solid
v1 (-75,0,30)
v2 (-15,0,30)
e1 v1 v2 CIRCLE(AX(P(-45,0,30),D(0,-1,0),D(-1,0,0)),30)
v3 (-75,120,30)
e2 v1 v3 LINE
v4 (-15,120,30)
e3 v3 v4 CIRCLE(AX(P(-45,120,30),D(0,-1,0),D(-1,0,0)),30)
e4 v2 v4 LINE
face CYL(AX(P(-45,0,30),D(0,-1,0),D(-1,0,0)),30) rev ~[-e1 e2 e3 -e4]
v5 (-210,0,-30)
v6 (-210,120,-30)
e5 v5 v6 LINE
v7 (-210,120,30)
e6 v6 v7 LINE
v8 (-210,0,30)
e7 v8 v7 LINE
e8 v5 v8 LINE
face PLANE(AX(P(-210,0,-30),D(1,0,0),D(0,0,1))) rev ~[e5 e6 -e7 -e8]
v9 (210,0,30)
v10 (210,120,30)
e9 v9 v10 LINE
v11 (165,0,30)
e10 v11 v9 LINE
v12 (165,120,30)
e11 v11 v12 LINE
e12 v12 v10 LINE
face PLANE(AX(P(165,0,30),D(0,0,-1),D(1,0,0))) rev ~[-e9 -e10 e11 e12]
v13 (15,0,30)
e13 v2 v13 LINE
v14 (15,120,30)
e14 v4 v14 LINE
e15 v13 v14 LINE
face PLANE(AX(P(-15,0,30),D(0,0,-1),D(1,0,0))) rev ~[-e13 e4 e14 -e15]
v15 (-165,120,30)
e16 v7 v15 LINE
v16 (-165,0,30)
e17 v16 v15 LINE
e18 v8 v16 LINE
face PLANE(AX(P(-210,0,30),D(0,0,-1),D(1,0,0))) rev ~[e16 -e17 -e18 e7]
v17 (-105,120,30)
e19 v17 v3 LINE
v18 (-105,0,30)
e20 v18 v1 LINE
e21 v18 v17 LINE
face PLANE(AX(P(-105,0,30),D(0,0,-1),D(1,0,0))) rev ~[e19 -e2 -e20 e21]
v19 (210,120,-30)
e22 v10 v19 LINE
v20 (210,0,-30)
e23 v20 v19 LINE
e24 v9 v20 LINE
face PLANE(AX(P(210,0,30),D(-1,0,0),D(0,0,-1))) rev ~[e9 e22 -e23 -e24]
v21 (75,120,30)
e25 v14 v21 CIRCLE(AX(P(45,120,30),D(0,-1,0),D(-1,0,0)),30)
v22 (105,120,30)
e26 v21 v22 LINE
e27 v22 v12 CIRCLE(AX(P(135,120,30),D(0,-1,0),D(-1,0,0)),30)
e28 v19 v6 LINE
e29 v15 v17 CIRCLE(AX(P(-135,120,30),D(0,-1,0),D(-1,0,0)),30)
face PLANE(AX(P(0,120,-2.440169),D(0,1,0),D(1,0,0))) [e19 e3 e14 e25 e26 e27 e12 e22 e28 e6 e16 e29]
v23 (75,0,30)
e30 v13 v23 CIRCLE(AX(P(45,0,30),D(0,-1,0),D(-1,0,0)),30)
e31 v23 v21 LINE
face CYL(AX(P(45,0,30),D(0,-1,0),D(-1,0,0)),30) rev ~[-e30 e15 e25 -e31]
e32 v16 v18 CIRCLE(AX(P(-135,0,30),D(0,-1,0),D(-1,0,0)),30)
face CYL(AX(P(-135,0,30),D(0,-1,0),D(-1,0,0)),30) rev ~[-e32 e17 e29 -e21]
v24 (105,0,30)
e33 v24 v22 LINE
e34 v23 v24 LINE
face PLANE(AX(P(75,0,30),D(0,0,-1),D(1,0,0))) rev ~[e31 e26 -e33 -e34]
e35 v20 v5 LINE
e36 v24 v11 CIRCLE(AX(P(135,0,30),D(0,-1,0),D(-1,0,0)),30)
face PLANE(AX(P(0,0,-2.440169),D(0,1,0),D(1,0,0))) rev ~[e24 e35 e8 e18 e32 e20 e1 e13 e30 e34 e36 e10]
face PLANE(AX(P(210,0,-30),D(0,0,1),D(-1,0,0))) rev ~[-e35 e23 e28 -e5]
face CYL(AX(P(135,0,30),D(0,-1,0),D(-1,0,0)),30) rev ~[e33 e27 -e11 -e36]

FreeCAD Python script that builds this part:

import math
import FreeCAD as App
import Part
import Sketcher

doc = App.newDocument("Part")
params = doc.addObject("Spreadsheet::Sheet", "Params")
for row, (alias, value) in enumerate([
    ("sketch1_radius", "30 mm"),
    ("sketch1_width", "30 mm"),
    ("sketch1_width2", "45 mm"),
    ("sketch1_height", "60 mm"),
    ("pad1_length", "120 mm"),
], start=1):
    params.set(f"A{row}", alias)
    params.set(f"B{row}", "=" + value)
    params.setAlias(f"B{row}", alias)

body = doc.addObject("PartDesign::Body", "Body")

# Sketch on XZ plane
sketch1 = body.newObject("Sketcher::SketchObject", "Sketch")
sketch1.AttachmentSupport = (doc.getObject("XZ_Plane"), [""])
sketch1.MapMode = "FlatFace"
sketch1.addGeometry([
    Part.LineSegment(App.Vector(-105, 30, 0), App.Vector(-75, 30, 0)),  # 0
    Part.ArcOfCircle(Part.Circle(App.Vector(-45, 30, 0), App.Vector(0, 0, 1), 30), math.radians(180), math.radians(360)),  # 1
    Part.LineSegment(App.Vector(-15, 30, 0), App.Vector(15, 30, 0)),  # 2
    Part.ArcOfCircle(Part.Circle(App.Vector(45, 30, 0), App.Vector(0, 0, 1), 30), math.radians(180), math.radians(360)),  # 3
    Part.LineSegment(App.Vector(75, 30, 0), App.Vector(105, 30, 0)),  # 4
    Part.ArcOfCircle(Part.Circle(App.Vector(135, 30, 0), App.Vector(0, 0, 1), 30), math.radians(180), math.radians(360)),  # 5
    Part.LineSegment(App.Vector(165, 30, 0), App.Vector(210, 30, 0)),  # 6
    Part.LineSegment(App.Vector(210, 30, 0), App.Vector(210, -30, 0)),  # 7
    Part.LineSegment(App.Vector(210, -30, 0), App.Vector(-210, -30, 0)),  # 8
    Part.LineSegment(App.Vector(-210, -30, 0), App.Vector(-210, 30, 0)),  # 9
    Part.LineSegment(App.Vector(-210, 30, 0), App.Vector(-165, 30, 0)),  # 10
    Part.ArcOfCircle(Part.Circle(App.Vector(-135, 30, 0), App.Vector(0, 0, 1), 30), math.radians(180), math.radians(360)),  # 11
], False)
sketch1.addConstraint([
    Sketcher.Constraint("Coincident", 0, 2, 1, 1),
    Sketcher.Constraint("Coincident", 1, 2, 2, 1),
    Sketcher.Constraint("Coincident", 2, 2, 3, 1),
    Sketcher.Constraint("Coincident", 3, 2, 4, 1),
    Sketcher.Constraint("Coincident", 4, 2, 5, 1),
    Sketcher.Constraint("Coincident", 5, 2, 6, 1),
    Sketcher.Constraint("Coincident", 6, 2, 7, 1),
    Sketcher.Constraint("Coincident", 7, 2, 8, 1),
    Sketcher.Constraint("Coincident", 8, 2, 9, 1),
    Sketcher.Constraint("Coincident", 9, 2, 10, 1),
    Sketcher.Constraint("Coincident", 10, 2, 11, 1),
    Sketcher.Constraint("Coincident", 11, 2, 0, 1),
    Sketcher.Constraint("Horizontal", 0),
    Sketcher.Constraint("Horizontal", 2),
    Sketcher.Constraint("Horizontal", 4),
    Sketcher.Constraint("Horizontal", 6),
    Sketcher.Constraint("Vertical", 7),
    Sketcher.Constraint("Horizontal", 8),
    Sketcher.Constraint("Vertical", 9),
    Sketcher.Constraint("Horizontal", 10),
    Sketcher.Constraint("Equal", 1, 3),
    Sketcher.Constraint("Equal", 3, 5),
    Sketcher.Constraint("Equal", 5, 11),
    Sketcher.Constraint("Symmetric", 6, 2, 8, 2, -1, 1),
    Sketcher.Constraint("Symmetric", 1, 3, 3, 3, -2),
    Sketcher.Constraint("Symmetric", 5, 3, 11, 3, -2),
    Sketcher.Constraint("Horizontal", 3, 3, 5, 3),
    Sketcher.Constraint("Horizontal", 11, 3, 0, 2),
    Sketcher.Constraint("Horizontal", 0, 2, 1, 2),
    Sketcher.Constraint("Horizontal", 2, 2, 3, 2),
    Sketcher.Constraint("Horizontal", 4, 2, 5, 2),
    Sketcher.Constraint("Horizontal", 6, 2, 9, 2),
    Sketcher.Constraint("Equal", 0, 2),
    Sketcher.Constraint("Radius", 1, 30.0),
    Sketcher.Constraint("DistanceX", 0, 1, 0, 2, 30.0),
    Sketcher.Constraint("DistanceX", 6, 1, 6, 2, 45.0),
    Sketcher.Constraint("DistanceY", 7, 2, 7, 1, 60.0),
])
sketch1.setExpression("Constraints[33]", "Params.sketch1_radius")
sketch1.setExpression("Constraints[34]", "Params.sketch1_width")
sketch1.setExpression("Constraints[35]", "Params.sketch1_width2")
sketch1.setExpression("Constraints[36]", "Params.sketch1_height")
pad1 = body.newObject("PartDesign::Pad", "Pad")
pad1.Profile = sketch1
pad1.setExpression("Length", "Params.pad1_length")
pad1.Reversed = True

doc.recompute()
